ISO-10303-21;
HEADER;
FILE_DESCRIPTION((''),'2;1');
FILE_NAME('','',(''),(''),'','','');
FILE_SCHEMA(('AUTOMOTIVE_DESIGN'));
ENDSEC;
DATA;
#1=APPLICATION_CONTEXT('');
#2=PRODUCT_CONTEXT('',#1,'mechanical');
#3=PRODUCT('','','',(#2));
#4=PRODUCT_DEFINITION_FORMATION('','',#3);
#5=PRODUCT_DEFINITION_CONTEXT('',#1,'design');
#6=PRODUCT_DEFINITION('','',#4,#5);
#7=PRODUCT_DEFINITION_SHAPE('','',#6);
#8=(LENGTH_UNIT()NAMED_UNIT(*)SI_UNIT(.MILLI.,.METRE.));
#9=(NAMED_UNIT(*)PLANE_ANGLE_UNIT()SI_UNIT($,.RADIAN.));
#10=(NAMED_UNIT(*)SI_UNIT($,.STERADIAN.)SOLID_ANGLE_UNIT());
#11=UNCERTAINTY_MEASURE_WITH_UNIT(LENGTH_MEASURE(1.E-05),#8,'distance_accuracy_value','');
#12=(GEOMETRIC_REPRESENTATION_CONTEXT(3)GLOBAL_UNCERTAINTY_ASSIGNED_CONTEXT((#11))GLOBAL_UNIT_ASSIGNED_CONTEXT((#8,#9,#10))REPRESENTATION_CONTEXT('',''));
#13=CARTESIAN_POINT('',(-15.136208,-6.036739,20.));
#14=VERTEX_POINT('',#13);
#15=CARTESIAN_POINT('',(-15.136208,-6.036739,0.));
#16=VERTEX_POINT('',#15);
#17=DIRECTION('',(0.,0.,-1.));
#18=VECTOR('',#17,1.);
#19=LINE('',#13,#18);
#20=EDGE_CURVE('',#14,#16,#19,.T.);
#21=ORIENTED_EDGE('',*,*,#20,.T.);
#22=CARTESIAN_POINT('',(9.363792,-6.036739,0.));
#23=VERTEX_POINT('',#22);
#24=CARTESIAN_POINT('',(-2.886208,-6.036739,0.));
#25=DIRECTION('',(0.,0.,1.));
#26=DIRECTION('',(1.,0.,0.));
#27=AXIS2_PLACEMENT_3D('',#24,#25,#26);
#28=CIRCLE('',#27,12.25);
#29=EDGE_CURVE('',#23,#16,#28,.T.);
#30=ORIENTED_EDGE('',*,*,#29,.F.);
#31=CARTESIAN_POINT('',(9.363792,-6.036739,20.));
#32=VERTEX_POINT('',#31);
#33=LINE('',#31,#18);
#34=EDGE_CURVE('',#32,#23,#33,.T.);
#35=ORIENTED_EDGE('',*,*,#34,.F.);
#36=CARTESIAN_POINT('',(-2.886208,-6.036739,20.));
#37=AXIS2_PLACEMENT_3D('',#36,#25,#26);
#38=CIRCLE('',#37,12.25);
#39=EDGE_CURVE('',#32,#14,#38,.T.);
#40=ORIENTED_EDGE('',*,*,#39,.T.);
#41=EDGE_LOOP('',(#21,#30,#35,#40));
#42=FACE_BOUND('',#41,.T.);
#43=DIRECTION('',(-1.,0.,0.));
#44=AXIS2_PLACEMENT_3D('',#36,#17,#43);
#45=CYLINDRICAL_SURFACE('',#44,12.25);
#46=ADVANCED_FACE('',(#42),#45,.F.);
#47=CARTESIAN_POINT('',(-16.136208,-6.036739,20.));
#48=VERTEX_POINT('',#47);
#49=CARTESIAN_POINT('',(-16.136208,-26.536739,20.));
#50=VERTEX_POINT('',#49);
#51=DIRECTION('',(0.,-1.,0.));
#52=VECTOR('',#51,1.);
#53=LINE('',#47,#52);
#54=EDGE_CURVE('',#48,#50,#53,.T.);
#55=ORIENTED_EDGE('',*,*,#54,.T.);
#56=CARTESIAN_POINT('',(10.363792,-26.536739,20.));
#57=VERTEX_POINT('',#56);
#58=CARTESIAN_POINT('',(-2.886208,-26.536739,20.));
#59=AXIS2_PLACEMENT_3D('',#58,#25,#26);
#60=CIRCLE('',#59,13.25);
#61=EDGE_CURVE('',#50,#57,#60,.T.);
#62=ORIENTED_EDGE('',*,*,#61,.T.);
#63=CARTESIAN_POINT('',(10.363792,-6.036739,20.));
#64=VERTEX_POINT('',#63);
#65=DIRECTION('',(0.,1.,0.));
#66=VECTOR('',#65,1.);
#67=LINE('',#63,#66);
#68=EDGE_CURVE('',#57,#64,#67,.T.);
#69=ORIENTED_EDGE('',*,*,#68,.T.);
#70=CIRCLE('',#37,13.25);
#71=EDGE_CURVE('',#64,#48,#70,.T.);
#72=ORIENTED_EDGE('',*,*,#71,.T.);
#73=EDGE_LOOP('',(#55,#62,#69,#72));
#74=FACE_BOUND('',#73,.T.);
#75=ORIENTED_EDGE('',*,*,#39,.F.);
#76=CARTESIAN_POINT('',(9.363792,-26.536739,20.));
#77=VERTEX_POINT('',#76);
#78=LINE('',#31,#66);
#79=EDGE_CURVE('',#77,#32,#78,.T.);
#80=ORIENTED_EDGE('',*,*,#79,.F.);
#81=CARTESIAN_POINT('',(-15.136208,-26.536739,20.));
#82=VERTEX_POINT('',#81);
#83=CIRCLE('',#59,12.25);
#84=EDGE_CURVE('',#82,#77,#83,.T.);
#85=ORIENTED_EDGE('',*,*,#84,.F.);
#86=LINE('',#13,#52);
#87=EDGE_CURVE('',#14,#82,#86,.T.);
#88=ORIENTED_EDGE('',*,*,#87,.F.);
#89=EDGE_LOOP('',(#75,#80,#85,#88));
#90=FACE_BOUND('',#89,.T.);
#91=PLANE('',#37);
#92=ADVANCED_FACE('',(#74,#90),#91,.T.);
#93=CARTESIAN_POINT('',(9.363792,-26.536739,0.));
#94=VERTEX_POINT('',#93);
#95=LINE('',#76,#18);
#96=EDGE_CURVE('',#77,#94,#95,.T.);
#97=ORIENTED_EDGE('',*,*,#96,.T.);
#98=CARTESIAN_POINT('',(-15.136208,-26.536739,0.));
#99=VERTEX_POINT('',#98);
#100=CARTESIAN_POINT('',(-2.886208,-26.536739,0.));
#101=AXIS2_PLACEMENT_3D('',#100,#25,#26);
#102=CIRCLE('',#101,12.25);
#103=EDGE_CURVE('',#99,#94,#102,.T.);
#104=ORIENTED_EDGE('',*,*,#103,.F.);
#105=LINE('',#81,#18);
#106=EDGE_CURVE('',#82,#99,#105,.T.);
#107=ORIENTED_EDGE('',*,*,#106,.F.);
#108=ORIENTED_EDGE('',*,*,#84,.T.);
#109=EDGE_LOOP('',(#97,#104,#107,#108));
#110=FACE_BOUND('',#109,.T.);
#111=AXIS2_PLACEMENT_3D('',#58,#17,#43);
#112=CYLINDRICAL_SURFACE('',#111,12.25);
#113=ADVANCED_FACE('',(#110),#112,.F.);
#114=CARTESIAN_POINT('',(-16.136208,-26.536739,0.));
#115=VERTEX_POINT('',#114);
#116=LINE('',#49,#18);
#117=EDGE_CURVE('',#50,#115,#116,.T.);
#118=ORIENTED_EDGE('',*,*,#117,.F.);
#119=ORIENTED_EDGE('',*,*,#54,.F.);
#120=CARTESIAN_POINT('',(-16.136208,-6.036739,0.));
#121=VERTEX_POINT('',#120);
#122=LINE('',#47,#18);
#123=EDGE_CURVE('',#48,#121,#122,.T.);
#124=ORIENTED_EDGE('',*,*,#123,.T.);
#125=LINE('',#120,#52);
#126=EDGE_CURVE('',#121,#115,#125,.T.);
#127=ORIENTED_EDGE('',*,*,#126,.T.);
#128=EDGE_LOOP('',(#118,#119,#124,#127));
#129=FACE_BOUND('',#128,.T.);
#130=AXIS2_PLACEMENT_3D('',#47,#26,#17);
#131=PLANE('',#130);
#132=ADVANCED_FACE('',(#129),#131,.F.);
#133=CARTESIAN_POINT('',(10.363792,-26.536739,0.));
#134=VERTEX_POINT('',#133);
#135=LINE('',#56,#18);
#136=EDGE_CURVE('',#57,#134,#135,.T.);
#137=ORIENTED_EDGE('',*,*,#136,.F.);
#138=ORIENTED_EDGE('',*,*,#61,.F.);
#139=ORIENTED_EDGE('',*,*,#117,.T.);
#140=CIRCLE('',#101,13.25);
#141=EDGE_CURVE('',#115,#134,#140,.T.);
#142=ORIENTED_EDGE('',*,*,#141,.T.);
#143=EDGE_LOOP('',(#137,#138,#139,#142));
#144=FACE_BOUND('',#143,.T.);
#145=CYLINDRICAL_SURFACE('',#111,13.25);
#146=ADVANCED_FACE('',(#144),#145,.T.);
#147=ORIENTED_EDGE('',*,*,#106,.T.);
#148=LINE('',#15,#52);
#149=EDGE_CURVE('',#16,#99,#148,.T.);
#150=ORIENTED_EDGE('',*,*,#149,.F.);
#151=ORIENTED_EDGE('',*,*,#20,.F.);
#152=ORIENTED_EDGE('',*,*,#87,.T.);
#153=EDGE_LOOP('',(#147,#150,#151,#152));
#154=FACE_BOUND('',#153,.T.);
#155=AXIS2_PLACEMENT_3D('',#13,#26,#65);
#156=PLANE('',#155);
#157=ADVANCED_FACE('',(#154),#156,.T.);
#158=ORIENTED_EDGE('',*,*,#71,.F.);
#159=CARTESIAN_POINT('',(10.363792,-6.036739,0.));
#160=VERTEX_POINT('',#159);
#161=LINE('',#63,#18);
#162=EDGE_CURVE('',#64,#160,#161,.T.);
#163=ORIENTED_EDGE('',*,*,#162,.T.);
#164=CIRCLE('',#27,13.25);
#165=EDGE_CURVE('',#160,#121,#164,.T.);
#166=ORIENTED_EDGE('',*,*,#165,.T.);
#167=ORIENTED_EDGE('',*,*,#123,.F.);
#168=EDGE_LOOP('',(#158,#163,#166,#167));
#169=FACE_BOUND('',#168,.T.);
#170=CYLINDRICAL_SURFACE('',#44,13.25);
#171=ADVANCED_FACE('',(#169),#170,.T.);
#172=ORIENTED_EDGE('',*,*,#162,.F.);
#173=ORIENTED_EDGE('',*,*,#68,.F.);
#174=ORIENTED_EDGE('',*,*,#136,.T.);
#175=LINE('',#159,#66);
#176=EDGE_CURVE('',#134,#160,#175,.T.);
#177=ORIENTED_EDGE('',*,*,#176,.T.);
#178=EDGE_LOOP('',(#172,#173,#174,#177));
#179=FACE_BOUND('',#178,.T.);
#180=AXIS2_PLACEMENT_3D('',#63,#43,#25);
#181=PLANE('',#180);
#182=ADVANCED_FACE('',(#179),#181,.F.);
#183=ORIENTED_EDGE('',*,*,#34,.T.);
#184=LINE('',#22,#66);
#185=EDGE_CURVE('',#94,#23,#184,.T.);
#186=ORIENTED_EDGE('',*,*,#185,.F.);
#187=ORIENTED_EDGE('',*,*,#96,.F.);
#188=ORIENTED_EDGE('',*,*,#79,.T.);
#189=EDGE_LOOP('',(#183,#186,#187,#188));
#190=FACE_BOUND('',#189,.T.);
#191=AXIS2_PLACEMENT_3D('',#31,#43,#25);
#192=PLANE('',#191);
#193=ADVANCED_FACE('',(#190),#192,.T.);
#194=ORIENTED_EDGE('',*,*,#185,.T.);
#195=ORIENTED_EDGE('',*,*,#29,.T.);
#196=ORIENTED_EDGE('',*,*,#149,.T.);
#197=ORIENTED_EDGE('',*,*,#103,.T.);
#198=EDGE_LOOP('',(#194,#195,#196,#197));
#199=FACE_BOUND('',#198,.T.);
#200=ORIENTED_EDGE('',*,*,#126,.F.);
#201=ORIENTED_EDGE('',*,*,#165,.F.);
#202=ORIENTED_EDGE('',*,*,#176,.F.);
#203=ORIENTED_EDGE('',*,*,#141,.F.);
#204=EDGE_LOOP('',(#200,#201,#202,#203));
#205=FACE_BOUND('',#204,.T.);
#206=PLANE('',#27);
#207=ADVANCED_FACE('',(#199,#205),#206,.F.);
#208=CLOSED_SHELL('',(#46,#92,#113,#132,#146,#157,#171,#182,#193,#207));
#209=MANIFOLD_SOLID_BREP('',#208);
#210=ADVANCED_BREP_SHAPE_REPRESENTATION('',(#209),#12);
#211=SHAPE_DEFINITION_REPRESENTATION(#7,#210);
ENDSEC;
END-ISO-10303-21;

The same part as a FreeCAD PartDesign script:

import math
import FreeCAD as App
import Part
import Sketcher

V = App.Vector
Q = App.Units.Quantity

doc = App.newDocument("Part")
body = doc.addObject("PartDesign::Body", "Body")

sketch1 = doc.addObject("Sketcher::SketchObject", "Sketch")
body.addObject(sketch1)
sketch1.AttachmentSupport = (doc.XY_Plane, [""])
sketch1.MapMode = "FlatFace"
sketch1.addGeometry(Part.LineSegment(V(10, -27, 0), V(10, -6, 0)), False)
sketch1.addGeometry(Part.ArcOfCircle(Part.Circle(V(-3, -6, 0), V(0, 0, 1), 13), math.radians(0), math.radians(180)), False)
sketch1.addGeometry(Part.LineSegment(V(-16, -6, 0), V(-16, -27, 0)), False)
sketch1.addGeometry(Part.ArcOfCircle(Part.Circle(V(-3, -27, 0), V(0, 0, 1), 13), math.radians(180), math.radians(360)), False)
sketch1.addGeometry(Part.LineSegment(V(9, -6, 0), V(9, -27, 0)), False)
sketch1.addGeometry(Part.ArcOfCircle(Part.Circle(V(-3, -27, 0), V(0, 0, 1), 12), math.radians(180), math.radians(360)), False)
sketch1.addGeometry(Part.LineSegment(V(-15, -27, 0), V(-15, -6, 0)), False)
sketch1.addGeometry(Part.ArcOfCircle(Part.Circle(V(-3, -6, 0), V(0, 0, 1), 12), math.radians(0), math.radians(180)), False)
sketch1.addConstraint(Sketcher.Constraint("Tangent", 0, 2, 1, 1))
sketch1.addConstraint(Sketcher.Constraint("Tangent", 1, 2, 2, 1))
sketch1.addConstraint(Sketcher.Constraint("Tangent", 2, 2, 3, 1))
sketch1.addConstraint(Sketcher.Constraint("Tangent", 3, 2, 0, 1))
sketch1.addConstraint(Sketcher.Constraint("Tangent", 4, 2, 5, 2))
sketch1.addConstraint(Sketcher.Constraint("Tangent", 5, 1, 6, 1))
sketch1.addConstraint(Sketcher.Constraint("Tangent", 6, 2, 7, 2))
sketch1.addConstraint(Sketcher.Constraint("Tangent", 7, 1, 4, 1))
sketch1.addConstraint(Sketcher.Constraint("Vertical", 0))
sketch1.addConstraint(Sketcher.Constraint("Vertical", 2))
sketch1.addConstraint(Sketcher.Constraint("Vertical", 4))
sketch1.addConstraint(Sketcher.Constraint("Vertical", 6))
sketch1.addConstraint(Sketcher.Constraint("Coincident", 5, 3, 3, 3))
sketch1.addConstraint(Sketcher.Constraint("Horizontal", 7, 3, 0, 2))
sketch1.addConstraint(Sketcher.Constraint("Radius", 1, Q("13.25 mm")))
sketch1.addConstraint(Sketcher.Constraint("Radius", 5, Q("12.25 mm")))
sketch1.addConstraint(Sketcher.Constraint("DistanceY", 0, 1, 0, 2, Q("20.5 mm")))
sketch1.addConstraint(Sketcher.Constraint("DistanceY", 1, 3, -1, 1, Q("6.036739 mm")))
sketch1.addConstraint(Sketcher.Constraint("DistanceX", 1, 3, -1, 1, Q("2.886208 mm")))
pad1 = doc.addObject("PartDesign::Pad", "Pad")
body.addObject(pad1)
pad1.Profile = sketch1
pad1.Length = 20

doc.recompute()
